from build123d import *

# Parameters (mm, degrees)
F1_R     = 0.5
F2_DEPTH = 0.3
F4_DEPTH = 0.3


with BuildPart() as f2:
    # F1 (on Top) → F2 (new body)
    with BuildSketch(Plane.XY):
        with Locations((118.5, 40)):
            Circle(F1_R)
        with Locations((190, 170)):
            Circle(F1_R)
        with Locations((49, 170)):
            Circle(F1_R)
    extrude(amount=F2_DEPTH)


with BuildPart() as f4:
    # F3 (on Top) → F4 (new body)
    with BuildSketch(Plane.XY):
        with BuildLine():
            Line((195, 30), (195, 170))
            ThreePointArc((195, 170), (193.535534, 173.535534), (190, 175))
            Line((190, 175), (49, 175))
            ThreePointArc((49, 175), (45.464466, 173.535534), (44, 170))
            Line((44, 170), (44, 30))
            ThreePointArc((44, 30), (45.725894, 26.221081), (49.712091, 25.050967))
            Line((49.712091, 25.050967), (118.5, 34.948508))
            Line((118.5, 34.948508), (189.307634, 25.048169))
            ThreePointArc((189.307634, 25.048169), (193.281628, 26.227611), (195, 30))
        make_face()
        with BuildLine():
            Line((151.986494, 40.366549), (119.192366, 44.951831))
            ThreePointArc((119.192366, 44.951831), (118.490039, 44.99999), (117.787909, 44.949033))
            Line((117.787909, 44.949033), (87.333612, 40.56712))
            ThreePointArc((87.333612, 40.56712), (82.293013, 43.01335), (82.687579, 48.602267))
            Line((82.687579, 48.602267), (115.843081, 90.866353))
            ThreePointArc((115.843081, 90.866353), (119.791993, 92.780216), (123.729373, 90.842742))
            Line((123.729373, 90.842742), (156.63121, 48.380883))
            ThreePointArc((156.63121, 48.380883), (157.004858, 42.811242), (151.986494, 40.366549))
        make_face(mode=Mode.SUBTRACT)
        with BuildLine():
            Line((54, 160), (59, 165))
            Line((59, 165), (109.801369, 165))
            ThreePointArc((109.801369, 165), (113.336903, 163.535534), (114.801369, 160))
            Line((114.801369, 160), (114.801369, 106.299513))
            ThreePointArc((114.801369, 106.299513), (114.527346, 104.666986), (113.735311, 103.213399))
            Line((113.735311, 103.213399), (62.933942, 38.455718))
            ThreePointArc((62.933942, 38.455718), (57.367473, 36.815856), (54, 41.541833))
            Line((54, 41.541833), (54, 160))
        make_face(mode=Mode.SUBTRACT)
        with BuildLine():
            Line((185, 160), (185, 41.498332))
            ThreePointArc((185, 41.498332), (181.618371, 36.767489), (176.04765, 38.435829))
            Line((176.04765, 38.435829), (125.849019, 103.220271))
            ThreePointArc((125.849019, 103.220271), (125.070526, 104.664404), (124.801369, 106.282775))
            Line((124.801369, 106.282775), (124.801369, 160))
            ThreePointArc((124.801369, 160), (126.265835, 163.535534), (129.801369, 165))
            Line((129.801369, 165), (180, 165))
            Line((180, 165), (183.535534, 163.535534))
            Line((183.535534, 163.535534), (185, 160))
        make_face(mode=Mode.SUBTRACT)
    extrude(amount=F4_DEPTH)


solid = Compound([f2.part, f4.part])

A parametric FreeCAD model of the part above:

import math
import FreeCAD as App
import Part
import Sketcher

V = App.Vector
Q = App.Units.Quantity

doc = App.newDocument("Part")
params = doc.addObject("Spreadsheet::Sheet", "Params")
for row, (alias, value) in enumerate([
    ("sketch1_diameter", "1 mm"),
    ("pad1_length", "0.3 mm"),
    ("sketch2_radius", "5 mm"),
    ("sketch2_radius2", "5 mm"),
    ("sketch2_radius3", "5 mm"),
    ("sketch2_radius4", "5 mm"),
    ("sketch2_radius5", "5 mm"),
    ("pad2_length", "0.3 mm"),
], start=1):
    params.set(f"A{row}", alias)
    params.set(f"B{row}", "=" + value)
    params.setAlias(f"B{row}", alias)

body = doc.addObject("PartDesign::Body", "Body")
body.AllowCompound = True

# Sketch on XY plane
sketch1 = doc.addObject("Sketcher::SketchObject", "Sketch")
body.addObject(sketch1)
sketch1.AttachmentSupport = (doc.XY_Plane, [""])
sketch1.MapMode = "FlatFace"
sketch1.addGeometry(Part.Circle(V(118.5, 40, 0), V(0, 0, 1), 0.5), False)
sketch1.addGeometry(Part.Circle(V(190, 170, 0), V(0, 0, 1), 0.5), False)
sketch1.addGeometry(Part.Circle(V(49, 170, 0), V(0, 0, 1), 0.5), False)
sketch1.addConstraint(Sketcher.Constraint("Equal", 0, 1))
sketch1.addConstraint(Sketcher.Constraint("Equal", 1, 2))
sketch1.addConstraint(Sketcher.Constraint("Horizontal", 1, 3, 2, 3))
sketch1.addConstraint(Sketcher.Constraint("Diameter", 0, Q("1 mm")))
sketch1.addConstraint(Sketcher.Constraint("DistanceY", -1, 1, 0, 3, Q("40 mm")))
sketch1.addConstraint(Sketcher.Constraint("DistanceX", -1, 1, 1, 3, Q("190 mm")))
sketch1.addConstraint(Sketcher.Constraint("DistanceY", -1, 1, 1, 3, Q("170 mm")))
sketch1.addConstraint(Sketcher.Constraint("DistanceX", -1, 1, 2, 3, Q("49 mm")))
sketch1.addConstraint(Sketcher.Constraint("DistanceX", -1, 1, 0, 3, Q("118.5 mm")))
sketch1.setExpression("Constraints[3]", "Params.sketch1_diameter")
pad1 = doc.addObject("PartDesign::Pad", "Pad")
body.addObject(pad1)
pad1.Profile = sketch1
pad1.setExpression("Length", "Params.pad1_length")
body2 = doc.addObject("PartDesign::Body", "Body001")

# Sketch on XY plane
sketch2 = doc.addObject("Sketcher::SketchObject", "Sketch001")
body2.addObject(sketch2)
sketch2.AttachmentSupport = (doc.getObject("XY_Plane001"), [""])
sketch2.MapMode = "FlatFace"
sketch2.addGeometry(Part.LineSegment(V(195, 30, 0), V(195, 170, 0)), False)
sketch2.addGeometry(Part.ArcOfCircle(Part.Circle(V(190, 170, 0), V(0, 0, 1), 5), math.radians(-0.000004), math.radians(90.000004)), False)
sketch2.addGeometry(Part.LineSegment(V(190, 175, 0), V(49, 175, 0)), False)
sketch2.addGeometry(Part.ArcOfCircle(Part.Circle(V(49, 170, 0), V(0, 0, 1), 5), math.radians(89.999996), math.radians(180.000004)), False)
sketch2.addGeometry(Part.LineSegment(V(44, 170, 0), V(44, 30, 0)), False)
sketch2.addGeometry(Part.ArcOfCircle(Part.Circle(V(49, 30, 0), V(0, 0, 1), 5), math.radians(-179.999996), math.radians(-81.812204)), False)
sketch2.addGeometry(Part.LineSegment(V(49.712091, 25.050967, 0), V(118.5, 34.948508, 0)), False)
sketch2.addGeometry(Part.LineSegment(V(118.5, 34.948508, 0), V(189.307634, 25.048169, 0)), False)
sketch2.addGeometry(Part.ArcOfCircle(Part.Circle(V(190, 30, 0), V(0, 0, 1), 5), math.radians(-97.959508), math.radians(0.000002)), False)
sketch2.addGeometry(Part.ArcOfCircle(Part.Circle(V(152.67886, 45.31838, 0), V(0, 0, 1), 5), math.radians(-97.959508), math.radians(37.770541)), False)
sketch2.addGeometry(Part.LineSegment(V(151.986494, 40.366549, 0), V(119.192366, 44.951831, 0)), False)
sketch2.addGeometry(Part.ArcOfCircle(Part.Circle(V(118.5, 39.999981, 0), V(0, 0, 1), 5.000019), math.radians(82.040523), math.radians(98.18777)), False)
sketch2.addGeometry(Part.LineSegment(V(117.787909, 44.949033, 0), V(87.333612, 40.56712, 0)), False)
sketch2.addGeometry(Part.ArcOfCircle(Part.Circle(V(86.62152, 45.516153, 0), V(0, 0, 1), 5), math.radians(141.886381), math.radians(278.187808)), False)
sketch2.addGeometry(Part.LineSegment(V(82.687579, 48.602267, 0), V(115.843081, 90.866353, 0)), False)
sketch2.addGeometry(Part.ArcOfCircle(Part.Circle(V(119.777023, 87.780238, 0), V(0, 0, 1), 5), math.radians(37.770543), math.radians(141.886379)), False)
sketch2.addGeometry(Part.LineSegment(V(123.729373, 90.842742, 0), V(156.63121, 48.380883, 0)), False)
sketch2.addGeometry(Part.LineSegment(V(54, 41.541833, 0), V(54, 160, 0)), False)
sketch2.addGeometry(Part.LineSegment(V(54, 160, 0), V(59, 165, 0)), False)
sketch2.addGeometry(Part.LineSegment(V(59, 165, 0), V(109.801369, 165, 0)), False)
sketch2.addGeometry(Part.ArcOfCircle(Part.Circle(V(109.801369, 160, 0), V(0, 0, 1), 5), math.radians(-0.000004), math.radians(90.000004)), False)
sketch2.addGeometry(Part.LineSegment(V(114.801369, 160, 0), V(114.801369, 106.299513, 0)), False)
sketch2.addGeometry(Part.ArcOfCircle(Part.Circle(V(109.801375, 106.299511, 0), V(0, 0, 1), 4.999994), math.radians(-38.113636), math.radians(0.000022)), False)
sketch2.addGeometry(Part.LineSegment(V(113.735311, 103.213399, 0), V(62.933942, 38.455718, 0)), False)
sketch2.addGeometry(Part.ArcOfCircle(Part.Circle(V(59, 41.541833, 0), V(0, 0, 1), 5), math.radians(179.999998), math.radians(321.886379)), False)
sketch2.addGeometry(Part.LineSegment(V(183.535534, 163.535534, 0), V(185, 160, 0)), False)
sketch2.addGeometry(Part.LineSegment(V(185, 160, 0), V(185, 41.498332, 0)), False)
sketch2.addGeometry(Part.ArcOfCircle(Part.Circle(V(180, 41.498332, 0), V(0, 0, 1), 5), math.radians(-142.229468), math.radians(0.000003)), False)
sketch2.addGeometry(Part.LineSegment(V(176.04765, 38.435829, 0), V(125.849019, 103.220271, 0)), False)
sketch2.addGeometry(Part.ArcOfCircle(Part.Circle(V(129.80137, 106.282775, 0), V(0, 0, 1), 5.000001), math.radians(-179.999999), math.radians(-142.229459)), False)
sketch2.addGeometry(Part.LineSegment(V(124.801369, 106.282775, 0), V(124.801369, 160, 0)), False)
sketch2.addGeometry(Part.ArcOfCircle(Part.Circle(V(129.801369, 160, 0), V(0, 0, 1), 5), math.radians(89.999996), math.radians(180.000004)), False)
sketch2.addGeometry(Part.LineSegment(V(129.801369, 165, 0), V(180, 165, 0)), False)
sketch2.addGeometry(Part.LineSegment(V(180, 165, 0), V(183.535534, 163.535534, 0)), False)
sketch2.addConstraint(Sketcher.Constraint("Coincident", 0, 2, 1, 1))
sketch2.addConstraint(Sketcher.Constraint("Coincident", 1, 2, 2, 1))
sketch2.addConstraint(Sketcher.Constraint("Coincident", 2, 2, 3, 1))
sketch2.addConstraint(Sketcher.Constraint("Coincident", 3, 2, 4, 1))
sketch2.addConstraint(Sketcher.Constraint("Coincident", 4, 2, 5, 1))
sketch2.addConstraint(Sketcher.Constraint("Coincident", 5, 2, 6, 1))
sketch2.addConstraint(Sketcher.Constraint("Coincident", 6, 2, 7, 1))
sketch2.addConstraint(Sketcher.Constraint("Coincident", 7, 2, 8, 1))
sketch2.addConstraint(Sketcher.Constraint("Coincident", 8, 2, 0, 1))
sketch2.addConstraint(Sketcher.Constraint("Coincident", 9, 1, 10, 1))
sketch2.addConstraint(Sketcher.Constraint("Coincident", 10, 2, 11, 1))
sketch2.addConstraint(Sketcher.Constraint("Coincident", 11, 2, 12, 1))
sketch2.addConstraint(Sketcher.Constraint("Coincident", 12, 2, 13, 2))
sketch2.addConstraint(Sketcher.Constraint("Coincident", 13, 1, 14, 1))
sketch2.addConstraint(Sketcher.Constraint("Coincident", 14, 2, 15, 2))
sketch2.addConstraint(Sketcher.Constraint("Coincident", 15, 1, 16, 1))
sketch2.addConstraint(Sketcher.Constraint("Coincident", 16, 2, 9, 2))
sketch2.addConstraint(Sketcher.Constraint("Coincident", 17, 2, 18, 1))
sketch2.addConstraint(Sketcher.Constraint("Coincident", 18, 2, 19, 1))
sketch2.addConstraint(Sketcher.Constraint("Coincident", 19, 2, 20, 2))
sketch2.addConstraint(Sketcher.Constraint("Coincident", 20, 1, 21, 1))
sketch2.addConstraint(Sketcher.Constraint("Coincident", 21, 2, 22, 2))
sketch2.addConstraint(Sketcher.Constraint("Coincident", 22, 1, 23, 1))
sketch2.addConstraint(Sketcher.Constraint("Coincident", 23, 2, 24, 2))
sketch2.addConstraint(Sketcher.Constraint("Coincident", 24, 1, 17, 1))
sketch2.addConstraint(Sketcher.Constraint("Coincident", 25, 2, 26, 1))
sketch2.addConstraint(Sketcher.Constraint("Coincident", 26, 2, 27, 2))
sketch2.addConstraint(Sketcher.Constraint("Coincident", 27, 1, 28, 1))
sketch2.addConstraint(Sketcher.Constraint("Coincident", 28, 2, 29, 2))
sketch2.addConstraint(Sketcher.Constraint("Coincident", 29, 1, 30, 1))
sketch2.addConstraint(Sketcher.Constraint("Coincident", 30, 2, 31, 2))
sketch2.addConstraint(Sketcher.Constraint("Coincident", 31, 1, 32, 1))
sketch2.addConstraint(Sketcher.Constraint("Coincident", 32, 2, 33, 1))
sketch2.addConstraint(Sketcher.Constraint("Coincident", 33, 2, 25, 1))
sketch2.addConstraint(Sketcher.Constraint("Vertical", 0))
sketch2.addConstraint(Sketcher.Constraint("Horizontal", 2))
sketch2.addConstraint(Sketcher.Constraint("Vertical", 4))
sketch2.addConstraint(Sketcher.Constraint("Vertical", 17))
sketch2.addConstraint(Sketcher.Constraint("Horizontal", 19))
sketch2.addConstraint(Sketcher.Constraint("Vertical", 21))
sketch2.addConstraint(Sketcher.Constraint("Vertical", 26))
sketch2.addConstraint(Sketcher.Constraint("Vertical", 30))
sketch2.addConstraint(Sketcher.Constraint("Horizontal", 32))
sketch2.addConstraint(Sketcher.Constraint("Radius", 1, Q("5 mm")))
sketch2.addConstraint(Sketcher.Constraint("Radius", 3, Q("5 mm")))
sketch2.addConstraint(Sketcher.Constraint("Radius", 5, Q("5 mm")))
sketch2.addConstraint(Sketcher.Constraint("Radius", 8, Q("5 mm")))
sketch2.addConstraint(Sketcher.Constraint("Radius", 9, Q("5 mm")))
sketch2.addConstraint(Sketcher.Constraint("Radius", 13, Q("5 mm")))
sketch2.addConstraint(Sketcher.Constraint("Radius", 15, Q("5 mm")))
sketch2.addConstraint(Sketcher.Constraint("Radius", 20, Q("5 mm")))
sketch2.addConstraint(Sketcher.Constraint("Radius", 24, Q("5 mm")))
sketch2.addConstraint(Sketcher.Constraint("Radius", 27, Q("5 mm")))
sketch2.addConstraint(Sketcher.Constraint("Radius", 29, Q("5.000001 mm")))
sketch2.addConstraint(Sketcher.Constraint("Radius", 31, Q("5 mm")))
sketch2.addConstraint(Sketcher.Constraint("DistanceX", 2, 2, 2, 1, Q("141 mm")))
sketch2.addConstraint(Sketcher.Constraint("DistanceY", 0, 1, 0, 2, Q("140 mm")))
sketch2.addConstraint(Sketcher.Constraint("DistanceY", 4, 2, 4, 1, Q("140 mm")))
sketch2.addConstraint(Sketcher.Constraint("DistanceX", -1, 1, 1, 3, Q("190 mm")))
sketch2.addConstraint(Sketcher.Constraint("DistanceY", -1, 1, 1, 3, Q("170 mm")))
sketch2.addConstraint(Sketcher.Constraint("DistanceX", -1, 1, 3, 3, Q("49 mm")))
sketch2.addConstraint(Sketcher.Constraint("DistanceY", -1, 1, 5, 3, Q("30 mm")))
sketch2.addConstraint(Sketcher.Constraint("DistanceY", -1, 1, 8, 3, Q("30 mm")))
sketch2.addConstraint(Sketcher.Constraint("DistanceY", -1, 1, 20, 3, Q("160 mm")))
sketch2.addConstraint(Sketcher.Constraint("DistanceX", -1, 1, 24, 3, Q("59 mm")))
sketch2.addConstraint(Sketcher.Constraint("DistanceX", -1, 1, 27, 3, Q("180 mm")))
sketch2.addConstraint(Sketcher.Constraint("DistanceY", -1, 1, 31, 3, Q("160 mm")))
sketch2.addConstraint(Sketcher.Constraint("DistanceY", -1, 1, 0, 2, Q("170 mm")))
sketch2.addConstraint(Sketcher.Constraint("DistanceX", -1, 1, 1, 2, Q("190 mm")))
sketch2.addConstraint(Sketcher.Constraint("DistanceY", -1, 1, 3, 2, Q("170 mm")))
sketch2.addConstraint(Sketcher.Constraint("DistanceY", -1, 1, 17, 2, Q("160 mm")))
sketch2.addConstraint(Sketcher.Constraint("DistanceX", -1, 1, 18, 2, Q("59 mm")))
sketch2.addConstraint(Sketcher.Constraint("DistanceY", -1, 1, 20, 1, Q("160 mm")))
sketch2.addConstraint(Sketcher.Constraint("DistanceY", -1, 1, 25, 2, Q("160 mm")))
sketch2.addConstraint(Sketcher.Constraint("DistanceY", -1, 1, 30, 2, Q("160 mm")))
sketch2.addConstraint(Sketcher.Constraint("DistanceX", -1, 1, 32, 2, Q("180 mm")))
sketch2.addConstraint(Sketcher.Constraint("DistanceX", 20, 3, 29, 3, Q("20.000001 mm")))
sketch2.addConstraint(Sketcher.Constraint("DistanceX", 19, 2, 31, 3, Q("20 mm")))
sketch2.addConstraint(Sketcher.Constraint("DistanceX", 30, 2, 31, 1, Q("5 mm")))
sketch2.addConstraint(Sketcher.Constraint("DistanceX", -1, 1, 11, 3, Q("118.5 mm")))
sketch2.addConstraint(Sketcher.Constraint("DistanceX", -1, 1, 6, 2, Q("118.5 mm")))
sketch2.addConstraint(Sketcher.Constraint("Radius", 11, Q("5.000019 mm")))
sketch2.addConstraint(Sketcher.Constraint("Radius", 22, Q("4.999994 mm")))
sketch2.addConstraint(Sketcher.Constraint("DistanceX", 22, 3, 15, 1, Q("13.927998 mm")))
sketch2.addConstraint(Sketcher.Constraint("DistanceX", 19, 1, 19, 2, Q("50.801369 mm")))
sketch2.addConstraint(Sketcher.Constraint("DistanceY", -1, 1, 22, 1, Q("103.213399 mm")))
sketch2.addConstraint(Sketcher.Constraint("DistanceY", 11, 3, 9, 3, Q("5.318398 mm")))
sketch2.addConstraint(Sketcher.Constraint("DistanceY", 11, 2, 10, 2, Q("0.002798 mm")))
sketch2.addConstraint(Sketcher.Constraint("DistanceY", 17, 1, 17, 2, Q("118.458167 mm")))
sketch2.addConstraint(Sketcher.Constraint("DistanceY", 21, 2, 21, 1, Q("53.700487 mm")))
sketch2.addConstraint(Sketcher.Constraint("DistanceY", 26, 2, 26, 1, Q("118.501668 mm")))
sketch2.addConstraint(Sketcher.Constraint("DistanceY", 30, 1, 30, 2, Q("53.717225 mm")))
sketch2.addConstraint(Sketcher.Constraint("DistanceX", -1, 1, 9, 3, Q("152.67886 mm")))
sketch2.addConstraint(Sketcher.Constraint("DistanceY", -1, 1, 9, 3, Q("45.31838 mm")))
sketch2.addConstraint(Sketcher.Constraint("DistanceX", -1, 1, 13, 3, Q("86.62152 mm")))
sketch2.addConstraint(Sketcher.Constraint("DistanceY", -1, 1, 15, 3, Q("87.780238 mm")))
sketch2.addConstraint(Sketcher.Constraint("DistanceY", -1, 1, 22, 3, Q("106.299511 mm")))
sketch2.addConstraint(Sketcher.Constraint("DistanceY", -1, 1, 27, 3, Q("41.498332 mm")))
sketch2.addConstraint(Sketcher.Constraint("DistanceX", -1, 1, 5, 2, Q("49.712091 mm")))
sketch2.addConstraint(Sketcher.Constraint("DistanceY", -1, 1, 7, 2, Q("25.048169 mm")))
sketch2.addConstraint(Sketcher.Constraint("DistanceY", -1, 1, 9, 1, Q("40.366549 mm")))
sketch2.addConstraint(Sketcher.Constraint("DistanceY", -1, 1, 10, 2, Q("44.951831 mm")))
sketch2.addConstraint(Sketcher.Constraint("DistanceY", -1, 1, 12, 2, Q("40.56712 mm")))
sketch2.addConstraint(Sketcher.Constraint("DistanceX", -1, 1, 13, 1, Q("82.687579 mm")))
sketch2.addConstraint(Sketcher.Constraint("DistanceX", -1, 1, 14, 2, Q("115.843081 mm")))
sketch2.addConstraint(Sketcher.Constraint("DistanceX", -1, 1, 16, 2, Q("156.63121 mm")))
sketch2.addConstraint(Sketcher.Constraint("DistanceX", -1, 1, 27, 1, Q("176.04765 mm")))
sketch2.addConstraint(Sketcher.Constraint("DistanceX", -1, 1, 28, 2, Q("125.849019 mm")))
sketch2.addConstraint(Sketcher.Constraint("DistanceY", -1, 1, 28, 2, Q("103.220271 mm")))
sketch2.addConstraint(Sketcher.Constraint("DistanceY", 11, 3, 13, 3, Q("5.516171 mm")))
sketch2.addConstraint(Sketcher.Constraint("DistanceY", 24, 3, 13, 3, Q("3.97432 mm")))
sketch2.addConstraint(Sketcher.Constraint("DistanceY", 6, 2, 9, 3, Q("10.369872 mm")))
sketch2.addConstraint(Sketcher.Constraint("DistanceX", 14, 2, 15, 3, Q("3.933942 mm")))
sketch2.addConstraint(Sketcher.Constraint("DistanceX", 24, 3, 23, 2, Q("3.933942 mm")))
sketch2.addConstraint(Sketcher.Constraint("Distance", 25, Q("3.826834 mm")))
sketch2.addConstraint(Sketcher.Constraint("Distance", 33, Q("3.826834 mm")))
sketch2.setExpression("Constraints[43]", "Params.sketch2_radius")
sketch2.setExpression("Constraints[44]", "Params.sketch2_radius2")
sketch2.setExpression("Constraints[45]", "Params.sketch2_radius3")
sketch2.setExpression("Constraints[46]", "Params.sketch2_radius4")
sketch2.setExpression("Constraints[47]", "Params.sketch2_radius5")
pad2 = doc.addObject("PartDesign::Pad", "Pad001")
body2.addObject(pad2)
pad2.Profile = sketch2
pad2.setExpression("Length", "Params.pad2_length")

doc.recompute()
